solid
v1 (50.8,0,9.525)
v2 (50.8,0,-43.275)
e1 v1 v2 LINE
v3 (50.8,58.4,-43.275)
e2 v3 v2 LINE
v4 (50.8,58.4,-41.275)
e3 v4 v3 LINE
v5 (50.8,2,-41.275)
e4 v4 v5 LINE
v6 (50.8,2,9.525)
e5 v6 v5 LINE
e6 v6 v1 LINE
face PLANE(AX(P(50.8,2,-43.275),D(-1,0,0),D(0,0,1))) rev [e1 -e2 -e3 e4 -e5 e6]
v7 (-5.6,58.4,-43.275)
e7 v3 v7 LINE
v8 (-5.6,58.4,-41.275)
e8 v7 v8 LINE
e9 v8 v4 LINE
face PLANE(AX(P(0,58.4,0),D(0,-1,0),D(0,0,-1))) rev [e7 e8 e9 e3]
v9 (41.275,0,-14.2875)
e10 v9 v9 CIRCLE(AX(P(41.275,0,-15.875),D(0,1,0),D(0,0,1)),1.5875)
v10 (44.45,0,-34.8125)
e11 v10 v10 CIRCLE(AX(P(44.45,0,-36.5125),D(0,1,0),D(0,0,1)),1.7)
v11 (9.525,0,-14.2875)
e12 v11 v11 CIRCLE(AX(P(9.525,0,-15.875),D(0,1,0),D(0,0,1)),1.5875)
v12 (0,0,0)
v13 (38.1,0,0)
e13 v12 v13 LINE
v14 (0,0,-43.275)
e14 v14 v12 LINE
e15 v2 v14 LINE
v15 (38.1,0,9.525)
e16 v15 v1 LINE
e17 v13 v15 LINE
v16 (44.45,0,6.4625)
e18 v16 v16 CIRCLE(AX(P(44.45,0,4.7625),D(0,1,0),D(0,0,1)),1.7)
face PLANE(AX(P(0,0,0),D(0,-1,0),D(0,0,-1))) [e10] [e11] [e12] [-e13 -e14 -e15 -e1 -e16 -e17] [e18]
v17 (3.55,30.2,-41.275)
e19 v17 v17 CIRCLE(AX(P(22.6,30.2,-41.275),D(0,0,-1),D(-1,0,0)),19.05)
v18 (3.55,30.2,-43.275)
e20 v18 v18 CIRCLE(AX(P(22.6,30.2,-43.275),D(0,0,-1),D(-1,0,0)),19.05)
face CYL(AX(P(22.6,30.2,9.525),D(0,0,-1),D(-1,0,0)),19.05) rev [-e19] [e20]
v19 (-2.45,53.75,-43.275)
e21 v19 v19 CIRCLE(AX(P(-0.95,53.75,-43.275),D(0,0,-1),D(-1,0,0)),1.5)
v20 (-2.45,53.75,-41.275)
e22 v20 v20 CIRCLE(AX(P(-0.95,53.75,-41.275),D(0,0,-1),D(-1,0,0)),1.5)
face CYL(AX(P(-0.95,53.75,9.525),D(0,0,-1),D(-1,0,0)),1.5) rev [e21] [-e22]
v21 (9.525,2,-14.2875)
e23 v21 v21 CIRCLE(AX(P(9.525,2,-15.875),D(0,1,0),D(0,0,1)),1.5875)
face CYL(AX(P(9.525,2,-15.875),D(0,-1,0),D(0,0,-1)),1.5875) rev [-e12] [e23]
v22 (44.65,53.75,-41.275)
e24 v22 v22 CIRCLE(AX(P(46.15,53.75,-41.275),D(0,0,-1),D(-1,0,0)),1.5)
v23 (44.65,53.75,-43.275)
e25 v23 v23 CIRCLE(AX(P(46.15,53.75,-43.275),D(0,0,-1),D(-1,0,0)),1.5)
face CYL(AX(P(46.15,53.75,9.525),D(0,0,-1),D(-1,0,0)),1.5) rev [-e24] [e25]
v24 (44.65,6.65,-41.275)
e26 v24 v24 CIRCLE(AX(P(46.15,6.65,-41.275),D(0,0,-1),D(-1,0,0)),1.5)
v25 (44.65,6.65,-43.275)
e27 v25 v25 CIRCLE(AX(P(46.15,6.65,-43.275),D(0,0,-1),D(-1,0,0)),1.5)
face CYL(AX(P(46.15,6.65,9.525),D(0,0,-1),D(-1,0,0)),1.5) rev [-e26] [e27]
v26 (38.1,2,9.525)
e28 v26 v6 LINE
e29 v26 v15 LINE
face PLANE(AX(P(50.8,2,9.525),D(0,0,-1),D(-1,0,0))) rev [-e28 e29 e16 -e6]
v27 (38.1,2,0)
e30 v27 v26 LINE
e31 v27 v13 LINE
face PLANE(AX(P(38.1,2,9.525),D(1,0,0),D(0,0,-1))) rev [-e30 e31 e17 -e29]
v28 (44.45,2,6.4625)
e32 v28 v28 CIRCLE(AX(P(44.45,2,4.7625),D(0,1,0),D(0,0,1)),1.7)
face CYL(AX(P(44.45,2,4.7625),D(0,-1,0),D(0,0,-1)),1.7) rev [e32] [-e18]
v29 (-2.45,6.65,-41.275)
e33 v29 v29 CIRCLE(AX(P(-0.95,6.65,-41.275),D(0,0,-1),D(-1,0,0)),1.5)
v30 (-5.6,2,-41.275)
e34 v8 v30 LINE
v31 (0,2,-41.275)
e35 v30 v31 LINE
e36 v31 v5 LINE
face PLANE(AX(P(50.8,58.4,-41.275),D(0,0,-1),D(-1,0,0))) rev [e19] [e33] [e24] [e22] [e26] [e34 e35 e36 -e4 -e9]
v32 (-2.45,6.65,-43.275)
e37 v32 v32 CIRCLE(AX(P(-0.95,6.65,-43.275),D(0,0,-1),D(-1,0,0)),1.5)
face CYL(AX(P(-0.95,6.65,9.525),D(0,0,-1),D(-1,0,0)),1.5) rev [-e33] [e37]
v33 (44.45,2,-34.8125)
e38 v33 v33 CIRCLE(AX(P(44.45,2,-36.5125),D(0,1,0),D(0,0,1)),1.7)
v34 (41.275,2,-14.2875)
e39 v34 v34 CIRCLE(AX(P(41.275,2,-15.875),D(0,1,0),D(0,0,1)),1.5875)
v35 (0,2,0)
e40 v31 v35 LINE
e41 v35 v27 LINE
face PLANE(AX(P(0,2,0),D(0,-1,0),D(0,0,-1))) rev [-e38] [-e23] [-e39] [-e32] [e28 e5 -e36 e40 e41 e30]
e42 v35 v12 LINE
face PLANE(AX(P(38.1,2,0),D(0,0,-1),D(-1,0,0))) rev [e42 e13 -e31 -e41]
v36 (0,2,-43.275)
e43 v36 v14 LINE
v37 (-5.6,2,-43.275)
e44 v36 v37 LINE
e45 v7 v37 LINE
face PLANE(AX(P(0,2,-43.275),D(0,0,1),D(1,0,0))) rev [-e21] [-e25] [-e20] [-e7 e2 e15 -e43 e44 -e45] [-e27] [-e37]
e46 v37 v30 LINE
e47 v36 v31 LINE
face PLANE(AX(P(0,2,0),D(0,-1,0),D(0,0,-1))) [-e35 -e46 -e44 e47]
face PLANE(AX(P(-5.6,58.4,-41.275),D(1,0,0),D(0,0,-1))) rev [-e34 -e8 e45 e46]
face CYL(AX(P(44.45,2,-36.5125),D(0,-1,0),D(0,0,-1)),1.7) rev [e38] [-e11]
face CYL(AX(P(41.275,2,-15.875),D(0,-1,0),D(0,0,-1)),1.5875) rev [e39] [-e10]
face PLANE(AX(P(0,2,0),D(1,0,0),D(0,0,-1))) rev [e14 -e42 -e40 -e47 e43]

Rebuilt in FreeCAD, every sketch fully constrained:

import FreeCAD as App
import Part
import Sketcher
Q = App.Units.Quantity

doc = App.newDocument("Part")
body = doc.addObject("PartDesign::Body", "Body")

# Sketch on XZ plane
sketch1 = body.newObject("Sketcher::SketchObject", "Sketch")
sketch1.AttachmentSupport = (doc.getObject("XZ_Plane"), [""])
sketch1.MapMode = "FlatFace"
sketch1.addGeometry([
    Part.LineSegment(App.Vector(50.8, -43.275, 0), App.Vector(0, -43.275, 0)),  # 0
    Part.LineSegment(App.Vector(0, -43.275, 0), App.Vector(0, 0, 0)),  # 1
    Part.LineSegment(App.Vector(0, 0, 0), App.Vector(38.1, 0, 0)),  # 2
    Part.LineSegment(App.Vector(38.1, 0, 0), App.Vector(38.1, 9.525, 0)),  # 3
    Part.LineSegment(App.Vector(38.1, 9.525, 0), App.Vector(50.8, 9.525, 0)),  # 4
    Part.LineSegment(App.Vector(50.8, 9.525, 0), App.Vector(50.8, -43.275, 0)),  # 5
    Part.Circle(App.Vector(44.45, 4.7625, 0), App.Vector(0, 0, 1), 1.7),  # 6
    Part.Circle(App.Vector(41.275, -15.875, 0), App.Vector(0, 0, 1), 1.5875),  # 7
    Part.Circle(App.Vector(9.525, -15.875, 0), App.Vector(0, 0, 1), 1.5875),  # 8
    Part.Circle(App.Vector(44.45, -36.5125, 0), App.Vector(0, 0, 1), 1.7),  # 9
], False)
sketch1.addConstraint([
    Sketcher.Constraint("Coincident", 0, 2, 1, 1),
    Sketcher.Constraint("Coincident", 1, 2, 2, 1),
    Sketcher.Constraint("Coincident", 2, 2, 3, 1),
    Sketcher.Constraint("Coincident", 3, 2, 4, 1),
    Sketcher.Constraint("Coincident", 4, 2, 5, 1),
    Sketcher.Constraint("Coincident", 5, 2, 0, 1),
    Sketcher.Constraint("Horizontal", 0),
    Sketcher.Constraint("Vertical", 1),
    Sketcher.Constraint("Horizontal", 2),
    Sketcher.Constraint("Vertical", 3),
    Sketcher.Constraint("Horizontal", 4),
    Sketcher.Constraint("Vertical", 5),
    Sketcher.Constraint("Coincident", 1, 2, -1, 1),
    Sketcher.Constraint("Equal", 7, 8),
    Sketcher.Constraint("Equal", 6, 9),
    Sketcher.Constraint("Horizontal", 7, 3, 8, 3),
    Sketcher.Constraint("Vertical", 6, 3, 9, 3),
    Sketcher.Constraint("Diameter", 6, Q("3.4 mm")),
    Sketcher.Constraint("Diameter", 7, Q("3.175 mm")),
    Sketcher.Constraint("DistanceX", 0, 2, 0, 1, Q("50.8 mm")),
    Sketcher.Constraint("DistanceX", 2, 1, 2, 2, Q("38.1 mm")),
    Sketcher.Constraint("DistanceY", 5, 2, 5, 1, Q("52.8 mm")),
    Sketcher.Constraint("DistanceY", 0, 2, 8, 3, Q("27.4 mm")),
    Sketcher.Constraint("DistanceY", 1, 1, 1, 2, Q("43.275 mm")),
    Sketcher.Constraint("DistanceX", -1, 1, 6, 3, Q("44.45 mm")),
    Sketcher.Constraint("DistanceX", 8, 3, 7, 3, Q("31.75 mm")),
    Sketcher.Constraint("DistanceX", -1, 1, 7, 3, Q("41.275 mm")),
    Sketcher.Constraint("DistanceY", 9, 3, 6, 3, Q("41.275 mm")),
    Sketcher.Constraint("DistanceY", -1, 1, 6, 3, Q("4.7625 mm")),
])
pad1 = body.newObject("PartDesign::Pad", "Pad")
pad1.Profile = sketch1
pad1.Length = 2
pad1.Reversed = True

# Sketch on XZ plane
sketch2 = body.newObject("Sketcher::SketchObject", "Sketch001")
sketch2.AttachmentSupport = (doc.getObject("XZ_Plane"), [""])
sketch2.MapMode = "FlatFace"
sketch2.AttachmentOffset = App.Placement(App.Vector(0, 0, -2), App.Rotation())
sketch2.addGeometry([
    Part.LineSegment(App.Vector(-5.6, -43.275, 0), App.Vector(-5.6, -41.275, 0)),
    Part.LineSegment(App.Vector(-5.6, -41.275, 0), App.Vector(50.8, -41.275, 0)),
    Part.LineSegment(App.Vector(50.8, -41.275, 0), App.Vector(50.8, -43.275, 0)),
    Part.LineSegment(App.Vector(50.8, -43.275, 0), App.Vector(-5.6, -43.275, 0)),
], False)
sketch2.addConstraint([
    Sketcher.Constraint("Coincident", 0, 2, 1, 1),
    Sketcher.Constraint("Coincident", 1, 2, 2, 1),
    Sketcher.Constraint("Coincident", 2, 2, 3, 1),
    Sketcher.Constraint("Coincident", 3, 2, 0, 1),
    Sketcher.Constraint("Vertical", 0),
    Sketcher.Constraint("Horizontal", 1),
    Sketcher.Constraint("Vertical", 2),
    Sketcher.Constraint("Horizontal", 3),
    Sketcher.Constraint("DistanceY", 0, 1, 0, 2, Q("2 mm")),
    Sketcher.Constraint("DistanceX", 1, 1, 1, 2, Q("56.4 mm")),
    Sketcher.Constraint("DistanceX", 0, 2, -1, 1, Q("5.6 mm")),
    Sketcher.Constraint("DistanceY", 0, 2, -1, 1, Q("41.275 mm")),
])
pad2 = body.newObject("PartDesign::Pad", "Pad001")
pad2.Profile = sketch2
pad2.Length = 56.4
pad2.Reversed = True

# Sketch on XY plane
sketch3 = body.newObject("Sketcher::SketchObject", "Sketch002")
sketch3.AttachmentSupport = (doc.getObject("XY_Plane"), [""])
sketch3.MapMode = "FlatFace"
sketch3.AttachmentOffset = App.Placement(App.Vector(0, 0, -43.275), App.Rotation())
sketch3.addGeometry([
    Part.Circle(App.Vector(22.6, 30.2, 0), App.Vector(0, 0, 1), 19.05),  # 0
    Part.Circle(App.Vector(-0.95, 53.75, 0), App.Vector(0, 0, 1), 1.5),  # 1
    Part.Circle(App.Vector(-0.95, 6.65, 0), App.Vector(0, 0, 1), 1.5),  # 2
    Part.Circle(App.Vector(46.15, 6.65, 0), App.Vector(0, 0, 1), 1.5),  # 3
    Part.Circle(App.Vector(46.15, 53.75, 0), App.Vector(0, 0, 1), 1.5),  # 4
], False)
sketch3.addConstraint([
    Sketcher.Constraint("Equal", 1, 2),
    Sketcher.Constraint("Equal", 2, 3),
    Sketcher.Constraint("Equal", 3, 4),
    Sketcher.Constraint("Horizontal", 2, 3, 3, 3),
    Sketcher.Constraint("Horizontal", 1, 3, 4, 3),
    Sketcher.Constraint("Vertical", 1, 3, 2, 3),
    Sketcher.Constraint("Vertical", 3, 3, 4, 3),
    Sketcher.Constraint("Diameter", 1, Q("3 mm")),
    Sketcher.Constraint("Diameter", 0, Q("38.1 mm")),
    Sketcher.Constraint("DistanceX", -1, 1, 0, 3, Q("22.6 mm")),
    Sketcher.Constraint("DistanceY", -1, 1, 0, 3, Q("30.2 mm")),
    Sketcher.Constraint("DistanceY", 2, 3, 1, 3, Q("47.1 mm")),
    Sketcher.Constraint("DistanceX", 2, 3, 3, 3, Q("47.1 mm")),
    Sketcher.Constraint("DistanceX", 1, 3, -1, 1, Q("0.95 mm")),
    Sketcher.Constraint("DistanceY", -1, 1, 1, 3, Q("53.75 mm")),
])
pocket1 = body.newObject("PartDesign::Pocket", "Pocket")
pocket1.Profile = sketch3
pocket1.Type = "ThroughAll"
pocket1.Reversed = True

doc.recompute()
